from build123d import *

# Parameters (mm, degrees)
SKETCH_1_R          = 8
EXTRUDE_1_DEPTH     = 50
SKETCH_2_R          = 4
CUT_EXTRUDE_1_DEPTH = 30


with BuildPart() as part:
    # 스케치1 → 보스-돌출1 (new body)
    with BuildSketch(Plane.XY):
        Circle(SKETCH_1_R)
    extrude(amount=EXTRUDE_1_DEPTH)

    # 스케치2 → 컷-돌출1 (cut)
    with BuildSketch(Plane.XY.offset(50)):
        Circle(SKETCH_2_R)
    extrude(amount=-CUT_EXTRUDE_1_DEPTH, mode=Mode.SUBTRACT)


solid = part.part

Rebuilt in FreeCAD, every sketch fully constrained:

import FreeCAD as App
import Part
import Sketcher
from FreeCAD import Vector

doc = App.newDocument("Part")
body = doc.addObject("PartDesign::Body", "Body")

# Sketch on XY plane
sketch1 = body.newObject("Sketcher::SketchObject", "Sketch")
sketch1.AttachmentSupport = (doc.getObject("XY_Plane"), [""])
sketch1.MapMode = "FlatFace"
sketch1.addGeometry(Part.Circle(Vector(0, 0, 0), Vector(0, 0, 1), 8), False)
sketch1.addConstraint([
    Sketcher.Constraint("Coincident", 0, 3, -1, 1),
    Sketcher.Constraint("Diameter", 0, 16.0),
])
pad1 = body.newObject("PartDesign::Pad", "Pad")
pad1.Profile = sketch1
pad1.Length = 50

# Sketch on XY plane
sketch2 = body.newObject("Sketcher::SketchObject", "Sketch001")
sketch2.AttachmentSupport = (doc.getObject("XY_Plane"), [""])
sketch2.MapMode = "FlatFace"
sketch2.AttachmentOffset = App.Placement(Vector(0, 0, 50), App.Rotation())
sketch2.addGeometry(Part.Circle(Vector(0, 0, 0), Vector(0, 0, 1), 4), False)
sketch2.addConstraint([
    Sketcher.Constraint("Coincident", 0, 3, -1, 1),
    Sketcher.Constraint("Diameter", 0, 8.0),
])
pocket1 = body.newObject("PartDesign::Pocket", "Pocket")
pocket1.Profile = sketch2
pocket1.Length = 30

doc.recompute()
